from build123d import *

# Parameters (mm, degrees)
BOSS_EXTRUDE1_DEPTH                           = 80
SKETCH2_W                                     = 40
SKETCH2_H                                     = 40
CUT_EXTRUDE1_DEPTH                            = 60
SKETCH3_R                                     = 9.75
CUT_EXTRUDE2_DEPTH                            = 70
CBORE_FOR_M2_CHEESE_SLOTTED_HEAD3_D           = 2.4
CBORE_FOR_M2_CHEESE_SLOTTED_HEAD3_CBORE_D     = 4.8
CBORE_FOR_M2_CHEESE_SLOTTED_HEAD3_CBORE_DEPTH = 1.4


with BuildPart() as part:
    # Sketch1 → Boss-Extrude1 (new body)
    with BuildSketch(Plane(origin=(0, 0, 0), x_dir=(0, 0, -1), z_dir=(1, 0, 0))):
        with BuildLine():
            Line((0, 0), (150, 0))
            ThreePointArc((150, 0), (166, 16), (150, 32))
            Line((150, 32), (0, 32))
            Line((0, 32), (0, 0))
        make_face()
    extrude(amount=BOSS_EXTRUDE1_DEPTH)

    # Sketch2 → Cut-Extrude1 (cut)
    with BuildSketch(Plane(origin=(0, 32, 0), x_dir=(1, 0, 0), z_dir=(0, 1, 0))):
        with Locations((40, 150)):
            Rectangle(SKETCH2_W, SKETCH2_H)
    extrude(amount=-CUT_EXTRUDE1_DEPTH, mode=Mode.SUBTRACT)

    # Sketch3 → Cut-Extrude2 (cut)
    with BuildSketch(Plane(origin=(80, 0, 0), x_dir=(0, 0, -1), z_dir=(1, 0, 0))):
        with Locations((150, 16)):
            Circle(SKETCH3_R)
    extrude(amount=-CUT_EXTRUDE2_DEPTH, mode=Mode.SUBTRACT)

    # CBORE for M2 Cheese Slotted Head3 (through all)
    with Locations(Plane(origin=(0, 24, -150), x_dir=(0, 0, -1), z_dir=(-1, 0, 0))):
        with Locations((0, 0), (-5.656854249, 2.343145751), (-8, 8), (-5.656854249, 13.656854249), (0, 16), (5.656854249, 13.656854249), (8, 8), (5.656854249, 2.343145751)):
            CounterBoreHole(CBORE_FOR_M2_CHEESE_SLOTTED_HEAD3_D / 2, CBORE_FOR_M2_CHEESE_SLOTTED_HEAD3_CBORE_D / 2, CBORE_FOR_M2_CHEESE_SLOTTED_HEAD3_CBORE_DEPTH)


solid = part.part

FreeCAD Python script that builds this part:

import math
import FreeCAD as App
import Part
import Sketcher
from FreeCAD import Vector
Q = App.Units.Quantity

doc = App.newDocument("Part")
body = doc.addObject("PartDesign::Body", "Body")

# Sketch on YZ plane
sketch1 = body.newObject("Sketcher::SketchObject", "Sketch")
sketch1.AttachmentSupport = (doc.getObject("YZ_Plane"), [""])
sketch1.MapMode = "FlatFace"
sketch1.addGeometry([
    Part.LineSegment(Vector(0, 0, 0), Vector(0, -150, 0)),
    Part.ArcOfCircle(Part.Circle(Vector(16, -150, 0), Vector(0, 0, 1), 16), math.radians(180), math.radians(360)),
    Part.LineSegment(Vector(32, -150, 0), Vector(32, 0, 0)),
    Part.LineSegment(Vector(32, 0, 0), Vector(0, 0, 0)),
], False)
sketch1.addConstraint([
    Sketcher.Constraint("Tangent", 0, 2, 1, 1),
    Sketcher.Constraint("Tangent", 1, 2, 2, 1),
    Sketcher.Constraint("Coincident", 2, 2, 3, 1),
    Sketcher.Constraint("Coincident", 3, 2, 0, 1),
    Sketcher.Constraint("Vertical", 0),
    Sketcher.Constraint("Vertical", 2),
    Sketcher.Constraint("Horizontal", 3),
    Sketcher.Constraint("Coincident", 3, 2, -1, 1),
    Sketcher.Constraint("Radius", 1, Q("16 mm")),
    Sketcher.Constraint("DistanceY", 0, 2, 0, 1, Q("150 mm")),
])
pad1 = body.newObject("PartDesign::Pad", "Pad")
pad1.Profile = sketch1
pad1.Length = 80

# Sketch on XZ plane
sketch2 = body.newObject("Sketcher::SketchObject", "Sketch001")
sketch2.AttachmentSupport = (doc.getObject("XZ_Plane"), [""])
sketch2.MapMode = "FlatFace"
sketch2.AttachmentOffset = App.Placement(Vector(0, 0, -32), App.Rotation())
sketch2.addGeometry([
    Part.LineSegment(Vector(20, -170, 0), Vector(20, -130, 0)),
    Part.LineSegment(Vector(20, -130, 0), Vector(60, -130, 0)),
    Part.LineSegment(Vector(60, -130, 0), Vector(60, -170, 0)),
    Part.LineSegment(Vector(60, -170, 0), Vector(20, -170, 0)),
], False)
sketch2.addConstraint([
    Sketcher.Constraint("Coincident", 0, 2, 1, 1),
    Sketcher.Constraint("Coincident", 1, 2, 2, 1),
    Sketcher.Constraint("Coincident", 2, 2, 3, 1),
    Sketcher.Constraint("Coincident", 3, 2, 0, 1),
    Sketcher.Constraint("Vertical", 0),
    Sketcher.Constraint("Horizontal", 1),
    Sketcher.Constraint("Vertical", 2),
    Sketcher.Constraint("Horizontal", 3),
    Sketcher.Constraint("Equal", 3, 0),
    Sketcher.Constraint("DistanceX", 1, 1, 1, 2, Q("40 mm")),
    Sketcher.Constraint("DistanceX", -1, 1, 0, 2, Q("20 mm")),
    Sketcher.Constraint("DistanceY", 0, 2, -1, 1, Q("130 mm")),
])
pocket1 = body.newObject("PartDesign::Pocket", "Pocket")
pocket1.Profile = sketch2
pocket1.Length = 60
pocket1.Reversed = True

# Sketch on YZ plane
sketch3 = body.newObject("Sketcher::SketchObject", "Sketch002")
sketch3.AttachmentSupport = (doc.getObject("YZ_Plane"), [""])
sketch3.MapMode = "FlatFace"
sketch3.AttachmentOffset = App.Placement(Vector(0, 0, 80), App.Rotation())
sketch3.addGeometry(Part.Circle(Vector(16, -150, 0), Vector(0, 0, 1), 9.75), False)
sketch3.addConstraint([
    Sketcher.Constraint("Diameter", 0, Q("19.5 mm")),
    Sketcher.Constraint("DistanceX", -1, 1, 0, 3, Q("16 mm")),
    Sketcher.Constraint("DistanceY", 0, 3, -1, 1, Q("150 mm")),
])
pocket2 = body.newObject("PartDesign::Pocket", "Pocket001")
pocket2.Profile = sketch3
pocket2.Length = 70

# Sketch on YZ plane
sketch4 = body.newObject("Sketcher::SketchObject", "Sketch003")
sketch4.AttachmentSupport = (doc.getObject("YZ_Plane"), [""])
sketch4.MapMode = "FlatFace"
sketch4.addGeometry([
    Part.Circle(Vector(24, -150, 0), Vector(0, 0, 1), 1.2),  # 0
    Part.Circle(Vector(21.656854, -144.343146, 0), Vector(0, 0, 1), 1.2),  # 1
    Part.Circle(Vector(16, -142, 0), Vector(0, 0, 1), 1.2),  # 2
    Part.Circle(Vector(10.343146, -144.343146, 0), Vector(0, 0, 1), 1.2),  # 3
    Part.Circle(Vector(8, -150, 0), Vector(0, 0, 1), 1.2),  # 4
    Part.Circle(Vector(10.343146, -155.656854, 0), Vector(0, 0, 1), 1.2),  # 5
    Part.Circle(Vector(16, -158, 0), Vector(0, 0, 1), 1.2),  # 6
    Part.Circle(Vector(21.656854, -155.656854, 0), Vector(0, 0, 1), 1.2),  # 7
], False)
sketch4.addConstraint([
    Sketcher.Constraint("Equal", 0, 1),
    Sketcher.Constraint("Equal", 1, 2),
    Sketcher.Constraint("Equal", 2, 3),
    Sketcher.Constraint("Equal", 3, 4),
    Sketcher.Constraint("Equal", 4, 5),
    Sketcher.Constraint("Equal", 5, 6),
    Sketcher.Constraint("Equal", 6, 7),
    Sketcher.Constraint("Horizontal", 1, 3, 3, 3),
    Sketcher.Constraint("Horizontal", 0, 3, 4, 3),
    Sketcher.Constraint("Horizontal", 5, 3, 7, 3),
    Sketcher.Constraint("Vertical", 3, 3, 5, 3),
    Sketcher.Constraint("Vertical", 2, 3, 6, 3),
    Sketcher.Constraint("Vertical", 1, 3, 7, 3),
    Sketcher.Constraint("Diameter", 0, Q("2.4 mm")),
    Sketcher.Constraint("DistanceX", -1, 1, 0, 3, Q("24 mm")),
    Sketcher.Constraint("DistanceY", 0, 3, -1, 1, Q("150 mm")),
    Sketcher.Constraint("DistanceX", -1, 1, 2, 3, Q("16 mm")),
    Sketcher.Constraint("DistanceY", 2, 3, -1, 1, Q("142 mm")),
    Sketcher.Constraint("DistanceX", -1, 1, 4, 3, Q("8 mm")),
    Sketcher.Constraint("DistanceY", 6, 3, -1, 1, Q("158 mm")),
    Sketcher.Constraint("DistanceX", 3, 3, 1, 3, Q("11.313708 mm")),
    Sketcher.Constraint("DistanceY", 5, 3, 3, 3, Q("11.313708 mm")),
    Sketcher.Constraint("DistanceX", -1, 1, 1, 3, Q("21.656854 mm")),
    Sketcher.Constraint("DistanceY", 1, 3, -1, 1, Q("144.343146 mm")),
])
doc.recompute()
hole = body.newObject("PartDesign::Hole", "Hole")
hole.Profile = sketch4
hole.ThreadType = "None"
hole.Diameter = 2.4
hole.DepthType = "ThroughAll"
hole.HoleCutType = "Counterbore"
hole.HoleCutDiameter = 4.8
hole.HoleCutDepth = 1.4
hole.Reversed = True

doc.recompute()
